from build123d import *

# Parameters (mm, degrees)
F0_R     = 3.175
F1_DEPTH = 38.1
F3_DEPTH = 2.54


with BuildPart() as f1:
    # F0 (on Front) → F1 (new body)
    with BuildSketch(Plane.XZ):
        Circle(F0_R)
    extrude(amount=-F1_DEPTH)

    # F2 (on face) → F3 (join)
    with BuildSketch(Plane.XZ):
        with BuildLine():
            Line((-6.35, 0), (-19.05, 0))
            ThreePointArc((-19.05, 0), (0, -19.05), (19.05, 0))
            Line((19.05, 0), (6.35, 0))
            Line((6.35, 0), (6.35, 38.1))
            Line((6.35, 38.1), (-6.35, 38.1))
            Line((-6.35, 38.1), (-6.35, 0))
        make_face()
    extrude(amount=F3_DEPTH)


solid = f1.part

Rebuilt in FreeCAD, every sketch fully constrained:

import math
import FreeCAD as App
import Part
import Sketcher
Q = App.Units.Quantity

doc = App.newDocument("Part")
params = doc.addObject("Spreadsheet::Sheet", "Params")
for row, (alias, value) in enumerate([
    ("sketch1_diameter", "0.25 in"),
    ("pad1_length", "1.5 in"),
    ("sketch2_radius", "0.75 in"),
    ("sketch2_height", "1.5 in"),
    ("pad2_length", "0.1 in"),
], start=1):
    params.set(f"A{row}", alias)
    params.set(f"B{row}", "=" + value)
    params.setAlias(f"B{row}", alias)

body = doc.addObject("PartDesign::Body", "Body")

sketch1 = body.newObject("Sketcher::SketchObject", "Sketch")
sketch1.AttachmentSupport = (doc.getObject("XZ_Plane"), [""])
sketch1.MapMode = "FlatFace"
sketch1.addGeometry(Part.Circle(App.Vector(0, 0, 0), App.Vector(0, 0, 1), 3.2), False)
sketch1.addConstraint(Sketcher.Constraint("Coincident", 0, 3, -1, 1))
sketch1.addConstraint(Sketcher.Constraint("Diameter", 0, Q("0.25 in")))
sketch1.setExpression("Constraints[1]", "Params.sketch1_diameter")
pad1 = body.newObject("PartDesign::Pad", "Pad")
pad1.Profile = sketch1
pad1.setExpression("Length", "Params.pad1_length")
pad1.Reversed = True

sketch2 = body.newObject("Sketcher::SketchObject", "Sketch001")
sketch2.AttachmentSupport = (doc.getObject("XZ_Plane"), [""])
sketch2.MapMode = "FlatFace"
sketch2.addGeometry(Part.LineSegment(App.Vector(-6, 0, 0), App.Vector(-19, 0, 0)), False)
sketch2.addGeometry(Part.ArcOfCircle(Part.Circle(App.Vector(0, 0, 0), App.Vector(0, 0, 1), 19), math.radians(180), math.radians(360)), False)
sketch2.addGeometry(Part.LineSegment(App.Vector(19, 0, 0), App.Vector(6, 0, 0)), False)
sketch2.addGeometry(Part.LineSegment(App.Vector(6, 0, 0), App.Vector(6, 38, 0)), False)
sketch2.addGeometry(Part.LineSegment(App.Vector(6, 38, 0), App.Vector(-6, 38, 0)), False)
sketch2.addGeometry(Part.LineSegment(App.Vector(-6, 38, 0), App.Vector(-6, 0, 0)), False)
sketch2.addConstraint(Sketcher.Constraint("Coincident", 0, 2, 1, 1))
sketch2.addConstraint(Sketcher.Constraint("Coincident", 1, 2, 2, 1))
sketch2.addConstraint(Sketcher.Constraint("Coincident", 2, 2, 3, 1))
sketch2.addConstraint(Sketcher.Constraint("Coincident", 3, 2, 4, 1))
sketch2.addConstraint(Sketcher.Constraint("Coincident", 4, 2, 5, 1))
sketch2.addConstraint(Sketcher.Constraint("Coincident", 5, 2, 0, 1))
sketch2.addConstraint(Sketcher.Constraint("Horizontal", 0))
sketch2.addConstraint(Sketcher.Constraint("Horizontal", 2))
sketch2.addConstraint(Sketcher.Constraint("Vertical", 3))
sketch2.addConstraint(Sketcher.Constraint("Horizontal", 4))
sketch2.addConstraint(Sketcher.Constraint("Vertical", 5))
sketch2.addConstraint(Sketcher.Constraint("Coincident", 1, 3, -1, 1))
sketch2.addConstraint(Sketcher.Constraint("Symmetric", 2, 2, 5, 2, -1, 1))
sketch2.addConstraint(Sketcher.Constraint("PointOnObject", 0, 2, -1))
sketch2.addConstraint(Sketcher.Constraint("Equal", 2, 4))
sketch2.addConstraint(Sketcher.Constraint("Radius", 1, Q("0.75 in")))
sketch2.addConstraint(Sketcher.Constraint("DistanceY", 3, 1, 3, 2, Q("1.5 in")))
sketch2.setExpression("Constraints[15]", "Params.sketch2_radius")
sketch2.setExpression("Constraints[16]", "Params.sketch2_height")
pad2 = body.newObject("PartDesign::Pad", "Pad001")
pad2.Profile = sketch2
pad2.setExpression("Length", "Params.pad2_length")

doc.recompute()
